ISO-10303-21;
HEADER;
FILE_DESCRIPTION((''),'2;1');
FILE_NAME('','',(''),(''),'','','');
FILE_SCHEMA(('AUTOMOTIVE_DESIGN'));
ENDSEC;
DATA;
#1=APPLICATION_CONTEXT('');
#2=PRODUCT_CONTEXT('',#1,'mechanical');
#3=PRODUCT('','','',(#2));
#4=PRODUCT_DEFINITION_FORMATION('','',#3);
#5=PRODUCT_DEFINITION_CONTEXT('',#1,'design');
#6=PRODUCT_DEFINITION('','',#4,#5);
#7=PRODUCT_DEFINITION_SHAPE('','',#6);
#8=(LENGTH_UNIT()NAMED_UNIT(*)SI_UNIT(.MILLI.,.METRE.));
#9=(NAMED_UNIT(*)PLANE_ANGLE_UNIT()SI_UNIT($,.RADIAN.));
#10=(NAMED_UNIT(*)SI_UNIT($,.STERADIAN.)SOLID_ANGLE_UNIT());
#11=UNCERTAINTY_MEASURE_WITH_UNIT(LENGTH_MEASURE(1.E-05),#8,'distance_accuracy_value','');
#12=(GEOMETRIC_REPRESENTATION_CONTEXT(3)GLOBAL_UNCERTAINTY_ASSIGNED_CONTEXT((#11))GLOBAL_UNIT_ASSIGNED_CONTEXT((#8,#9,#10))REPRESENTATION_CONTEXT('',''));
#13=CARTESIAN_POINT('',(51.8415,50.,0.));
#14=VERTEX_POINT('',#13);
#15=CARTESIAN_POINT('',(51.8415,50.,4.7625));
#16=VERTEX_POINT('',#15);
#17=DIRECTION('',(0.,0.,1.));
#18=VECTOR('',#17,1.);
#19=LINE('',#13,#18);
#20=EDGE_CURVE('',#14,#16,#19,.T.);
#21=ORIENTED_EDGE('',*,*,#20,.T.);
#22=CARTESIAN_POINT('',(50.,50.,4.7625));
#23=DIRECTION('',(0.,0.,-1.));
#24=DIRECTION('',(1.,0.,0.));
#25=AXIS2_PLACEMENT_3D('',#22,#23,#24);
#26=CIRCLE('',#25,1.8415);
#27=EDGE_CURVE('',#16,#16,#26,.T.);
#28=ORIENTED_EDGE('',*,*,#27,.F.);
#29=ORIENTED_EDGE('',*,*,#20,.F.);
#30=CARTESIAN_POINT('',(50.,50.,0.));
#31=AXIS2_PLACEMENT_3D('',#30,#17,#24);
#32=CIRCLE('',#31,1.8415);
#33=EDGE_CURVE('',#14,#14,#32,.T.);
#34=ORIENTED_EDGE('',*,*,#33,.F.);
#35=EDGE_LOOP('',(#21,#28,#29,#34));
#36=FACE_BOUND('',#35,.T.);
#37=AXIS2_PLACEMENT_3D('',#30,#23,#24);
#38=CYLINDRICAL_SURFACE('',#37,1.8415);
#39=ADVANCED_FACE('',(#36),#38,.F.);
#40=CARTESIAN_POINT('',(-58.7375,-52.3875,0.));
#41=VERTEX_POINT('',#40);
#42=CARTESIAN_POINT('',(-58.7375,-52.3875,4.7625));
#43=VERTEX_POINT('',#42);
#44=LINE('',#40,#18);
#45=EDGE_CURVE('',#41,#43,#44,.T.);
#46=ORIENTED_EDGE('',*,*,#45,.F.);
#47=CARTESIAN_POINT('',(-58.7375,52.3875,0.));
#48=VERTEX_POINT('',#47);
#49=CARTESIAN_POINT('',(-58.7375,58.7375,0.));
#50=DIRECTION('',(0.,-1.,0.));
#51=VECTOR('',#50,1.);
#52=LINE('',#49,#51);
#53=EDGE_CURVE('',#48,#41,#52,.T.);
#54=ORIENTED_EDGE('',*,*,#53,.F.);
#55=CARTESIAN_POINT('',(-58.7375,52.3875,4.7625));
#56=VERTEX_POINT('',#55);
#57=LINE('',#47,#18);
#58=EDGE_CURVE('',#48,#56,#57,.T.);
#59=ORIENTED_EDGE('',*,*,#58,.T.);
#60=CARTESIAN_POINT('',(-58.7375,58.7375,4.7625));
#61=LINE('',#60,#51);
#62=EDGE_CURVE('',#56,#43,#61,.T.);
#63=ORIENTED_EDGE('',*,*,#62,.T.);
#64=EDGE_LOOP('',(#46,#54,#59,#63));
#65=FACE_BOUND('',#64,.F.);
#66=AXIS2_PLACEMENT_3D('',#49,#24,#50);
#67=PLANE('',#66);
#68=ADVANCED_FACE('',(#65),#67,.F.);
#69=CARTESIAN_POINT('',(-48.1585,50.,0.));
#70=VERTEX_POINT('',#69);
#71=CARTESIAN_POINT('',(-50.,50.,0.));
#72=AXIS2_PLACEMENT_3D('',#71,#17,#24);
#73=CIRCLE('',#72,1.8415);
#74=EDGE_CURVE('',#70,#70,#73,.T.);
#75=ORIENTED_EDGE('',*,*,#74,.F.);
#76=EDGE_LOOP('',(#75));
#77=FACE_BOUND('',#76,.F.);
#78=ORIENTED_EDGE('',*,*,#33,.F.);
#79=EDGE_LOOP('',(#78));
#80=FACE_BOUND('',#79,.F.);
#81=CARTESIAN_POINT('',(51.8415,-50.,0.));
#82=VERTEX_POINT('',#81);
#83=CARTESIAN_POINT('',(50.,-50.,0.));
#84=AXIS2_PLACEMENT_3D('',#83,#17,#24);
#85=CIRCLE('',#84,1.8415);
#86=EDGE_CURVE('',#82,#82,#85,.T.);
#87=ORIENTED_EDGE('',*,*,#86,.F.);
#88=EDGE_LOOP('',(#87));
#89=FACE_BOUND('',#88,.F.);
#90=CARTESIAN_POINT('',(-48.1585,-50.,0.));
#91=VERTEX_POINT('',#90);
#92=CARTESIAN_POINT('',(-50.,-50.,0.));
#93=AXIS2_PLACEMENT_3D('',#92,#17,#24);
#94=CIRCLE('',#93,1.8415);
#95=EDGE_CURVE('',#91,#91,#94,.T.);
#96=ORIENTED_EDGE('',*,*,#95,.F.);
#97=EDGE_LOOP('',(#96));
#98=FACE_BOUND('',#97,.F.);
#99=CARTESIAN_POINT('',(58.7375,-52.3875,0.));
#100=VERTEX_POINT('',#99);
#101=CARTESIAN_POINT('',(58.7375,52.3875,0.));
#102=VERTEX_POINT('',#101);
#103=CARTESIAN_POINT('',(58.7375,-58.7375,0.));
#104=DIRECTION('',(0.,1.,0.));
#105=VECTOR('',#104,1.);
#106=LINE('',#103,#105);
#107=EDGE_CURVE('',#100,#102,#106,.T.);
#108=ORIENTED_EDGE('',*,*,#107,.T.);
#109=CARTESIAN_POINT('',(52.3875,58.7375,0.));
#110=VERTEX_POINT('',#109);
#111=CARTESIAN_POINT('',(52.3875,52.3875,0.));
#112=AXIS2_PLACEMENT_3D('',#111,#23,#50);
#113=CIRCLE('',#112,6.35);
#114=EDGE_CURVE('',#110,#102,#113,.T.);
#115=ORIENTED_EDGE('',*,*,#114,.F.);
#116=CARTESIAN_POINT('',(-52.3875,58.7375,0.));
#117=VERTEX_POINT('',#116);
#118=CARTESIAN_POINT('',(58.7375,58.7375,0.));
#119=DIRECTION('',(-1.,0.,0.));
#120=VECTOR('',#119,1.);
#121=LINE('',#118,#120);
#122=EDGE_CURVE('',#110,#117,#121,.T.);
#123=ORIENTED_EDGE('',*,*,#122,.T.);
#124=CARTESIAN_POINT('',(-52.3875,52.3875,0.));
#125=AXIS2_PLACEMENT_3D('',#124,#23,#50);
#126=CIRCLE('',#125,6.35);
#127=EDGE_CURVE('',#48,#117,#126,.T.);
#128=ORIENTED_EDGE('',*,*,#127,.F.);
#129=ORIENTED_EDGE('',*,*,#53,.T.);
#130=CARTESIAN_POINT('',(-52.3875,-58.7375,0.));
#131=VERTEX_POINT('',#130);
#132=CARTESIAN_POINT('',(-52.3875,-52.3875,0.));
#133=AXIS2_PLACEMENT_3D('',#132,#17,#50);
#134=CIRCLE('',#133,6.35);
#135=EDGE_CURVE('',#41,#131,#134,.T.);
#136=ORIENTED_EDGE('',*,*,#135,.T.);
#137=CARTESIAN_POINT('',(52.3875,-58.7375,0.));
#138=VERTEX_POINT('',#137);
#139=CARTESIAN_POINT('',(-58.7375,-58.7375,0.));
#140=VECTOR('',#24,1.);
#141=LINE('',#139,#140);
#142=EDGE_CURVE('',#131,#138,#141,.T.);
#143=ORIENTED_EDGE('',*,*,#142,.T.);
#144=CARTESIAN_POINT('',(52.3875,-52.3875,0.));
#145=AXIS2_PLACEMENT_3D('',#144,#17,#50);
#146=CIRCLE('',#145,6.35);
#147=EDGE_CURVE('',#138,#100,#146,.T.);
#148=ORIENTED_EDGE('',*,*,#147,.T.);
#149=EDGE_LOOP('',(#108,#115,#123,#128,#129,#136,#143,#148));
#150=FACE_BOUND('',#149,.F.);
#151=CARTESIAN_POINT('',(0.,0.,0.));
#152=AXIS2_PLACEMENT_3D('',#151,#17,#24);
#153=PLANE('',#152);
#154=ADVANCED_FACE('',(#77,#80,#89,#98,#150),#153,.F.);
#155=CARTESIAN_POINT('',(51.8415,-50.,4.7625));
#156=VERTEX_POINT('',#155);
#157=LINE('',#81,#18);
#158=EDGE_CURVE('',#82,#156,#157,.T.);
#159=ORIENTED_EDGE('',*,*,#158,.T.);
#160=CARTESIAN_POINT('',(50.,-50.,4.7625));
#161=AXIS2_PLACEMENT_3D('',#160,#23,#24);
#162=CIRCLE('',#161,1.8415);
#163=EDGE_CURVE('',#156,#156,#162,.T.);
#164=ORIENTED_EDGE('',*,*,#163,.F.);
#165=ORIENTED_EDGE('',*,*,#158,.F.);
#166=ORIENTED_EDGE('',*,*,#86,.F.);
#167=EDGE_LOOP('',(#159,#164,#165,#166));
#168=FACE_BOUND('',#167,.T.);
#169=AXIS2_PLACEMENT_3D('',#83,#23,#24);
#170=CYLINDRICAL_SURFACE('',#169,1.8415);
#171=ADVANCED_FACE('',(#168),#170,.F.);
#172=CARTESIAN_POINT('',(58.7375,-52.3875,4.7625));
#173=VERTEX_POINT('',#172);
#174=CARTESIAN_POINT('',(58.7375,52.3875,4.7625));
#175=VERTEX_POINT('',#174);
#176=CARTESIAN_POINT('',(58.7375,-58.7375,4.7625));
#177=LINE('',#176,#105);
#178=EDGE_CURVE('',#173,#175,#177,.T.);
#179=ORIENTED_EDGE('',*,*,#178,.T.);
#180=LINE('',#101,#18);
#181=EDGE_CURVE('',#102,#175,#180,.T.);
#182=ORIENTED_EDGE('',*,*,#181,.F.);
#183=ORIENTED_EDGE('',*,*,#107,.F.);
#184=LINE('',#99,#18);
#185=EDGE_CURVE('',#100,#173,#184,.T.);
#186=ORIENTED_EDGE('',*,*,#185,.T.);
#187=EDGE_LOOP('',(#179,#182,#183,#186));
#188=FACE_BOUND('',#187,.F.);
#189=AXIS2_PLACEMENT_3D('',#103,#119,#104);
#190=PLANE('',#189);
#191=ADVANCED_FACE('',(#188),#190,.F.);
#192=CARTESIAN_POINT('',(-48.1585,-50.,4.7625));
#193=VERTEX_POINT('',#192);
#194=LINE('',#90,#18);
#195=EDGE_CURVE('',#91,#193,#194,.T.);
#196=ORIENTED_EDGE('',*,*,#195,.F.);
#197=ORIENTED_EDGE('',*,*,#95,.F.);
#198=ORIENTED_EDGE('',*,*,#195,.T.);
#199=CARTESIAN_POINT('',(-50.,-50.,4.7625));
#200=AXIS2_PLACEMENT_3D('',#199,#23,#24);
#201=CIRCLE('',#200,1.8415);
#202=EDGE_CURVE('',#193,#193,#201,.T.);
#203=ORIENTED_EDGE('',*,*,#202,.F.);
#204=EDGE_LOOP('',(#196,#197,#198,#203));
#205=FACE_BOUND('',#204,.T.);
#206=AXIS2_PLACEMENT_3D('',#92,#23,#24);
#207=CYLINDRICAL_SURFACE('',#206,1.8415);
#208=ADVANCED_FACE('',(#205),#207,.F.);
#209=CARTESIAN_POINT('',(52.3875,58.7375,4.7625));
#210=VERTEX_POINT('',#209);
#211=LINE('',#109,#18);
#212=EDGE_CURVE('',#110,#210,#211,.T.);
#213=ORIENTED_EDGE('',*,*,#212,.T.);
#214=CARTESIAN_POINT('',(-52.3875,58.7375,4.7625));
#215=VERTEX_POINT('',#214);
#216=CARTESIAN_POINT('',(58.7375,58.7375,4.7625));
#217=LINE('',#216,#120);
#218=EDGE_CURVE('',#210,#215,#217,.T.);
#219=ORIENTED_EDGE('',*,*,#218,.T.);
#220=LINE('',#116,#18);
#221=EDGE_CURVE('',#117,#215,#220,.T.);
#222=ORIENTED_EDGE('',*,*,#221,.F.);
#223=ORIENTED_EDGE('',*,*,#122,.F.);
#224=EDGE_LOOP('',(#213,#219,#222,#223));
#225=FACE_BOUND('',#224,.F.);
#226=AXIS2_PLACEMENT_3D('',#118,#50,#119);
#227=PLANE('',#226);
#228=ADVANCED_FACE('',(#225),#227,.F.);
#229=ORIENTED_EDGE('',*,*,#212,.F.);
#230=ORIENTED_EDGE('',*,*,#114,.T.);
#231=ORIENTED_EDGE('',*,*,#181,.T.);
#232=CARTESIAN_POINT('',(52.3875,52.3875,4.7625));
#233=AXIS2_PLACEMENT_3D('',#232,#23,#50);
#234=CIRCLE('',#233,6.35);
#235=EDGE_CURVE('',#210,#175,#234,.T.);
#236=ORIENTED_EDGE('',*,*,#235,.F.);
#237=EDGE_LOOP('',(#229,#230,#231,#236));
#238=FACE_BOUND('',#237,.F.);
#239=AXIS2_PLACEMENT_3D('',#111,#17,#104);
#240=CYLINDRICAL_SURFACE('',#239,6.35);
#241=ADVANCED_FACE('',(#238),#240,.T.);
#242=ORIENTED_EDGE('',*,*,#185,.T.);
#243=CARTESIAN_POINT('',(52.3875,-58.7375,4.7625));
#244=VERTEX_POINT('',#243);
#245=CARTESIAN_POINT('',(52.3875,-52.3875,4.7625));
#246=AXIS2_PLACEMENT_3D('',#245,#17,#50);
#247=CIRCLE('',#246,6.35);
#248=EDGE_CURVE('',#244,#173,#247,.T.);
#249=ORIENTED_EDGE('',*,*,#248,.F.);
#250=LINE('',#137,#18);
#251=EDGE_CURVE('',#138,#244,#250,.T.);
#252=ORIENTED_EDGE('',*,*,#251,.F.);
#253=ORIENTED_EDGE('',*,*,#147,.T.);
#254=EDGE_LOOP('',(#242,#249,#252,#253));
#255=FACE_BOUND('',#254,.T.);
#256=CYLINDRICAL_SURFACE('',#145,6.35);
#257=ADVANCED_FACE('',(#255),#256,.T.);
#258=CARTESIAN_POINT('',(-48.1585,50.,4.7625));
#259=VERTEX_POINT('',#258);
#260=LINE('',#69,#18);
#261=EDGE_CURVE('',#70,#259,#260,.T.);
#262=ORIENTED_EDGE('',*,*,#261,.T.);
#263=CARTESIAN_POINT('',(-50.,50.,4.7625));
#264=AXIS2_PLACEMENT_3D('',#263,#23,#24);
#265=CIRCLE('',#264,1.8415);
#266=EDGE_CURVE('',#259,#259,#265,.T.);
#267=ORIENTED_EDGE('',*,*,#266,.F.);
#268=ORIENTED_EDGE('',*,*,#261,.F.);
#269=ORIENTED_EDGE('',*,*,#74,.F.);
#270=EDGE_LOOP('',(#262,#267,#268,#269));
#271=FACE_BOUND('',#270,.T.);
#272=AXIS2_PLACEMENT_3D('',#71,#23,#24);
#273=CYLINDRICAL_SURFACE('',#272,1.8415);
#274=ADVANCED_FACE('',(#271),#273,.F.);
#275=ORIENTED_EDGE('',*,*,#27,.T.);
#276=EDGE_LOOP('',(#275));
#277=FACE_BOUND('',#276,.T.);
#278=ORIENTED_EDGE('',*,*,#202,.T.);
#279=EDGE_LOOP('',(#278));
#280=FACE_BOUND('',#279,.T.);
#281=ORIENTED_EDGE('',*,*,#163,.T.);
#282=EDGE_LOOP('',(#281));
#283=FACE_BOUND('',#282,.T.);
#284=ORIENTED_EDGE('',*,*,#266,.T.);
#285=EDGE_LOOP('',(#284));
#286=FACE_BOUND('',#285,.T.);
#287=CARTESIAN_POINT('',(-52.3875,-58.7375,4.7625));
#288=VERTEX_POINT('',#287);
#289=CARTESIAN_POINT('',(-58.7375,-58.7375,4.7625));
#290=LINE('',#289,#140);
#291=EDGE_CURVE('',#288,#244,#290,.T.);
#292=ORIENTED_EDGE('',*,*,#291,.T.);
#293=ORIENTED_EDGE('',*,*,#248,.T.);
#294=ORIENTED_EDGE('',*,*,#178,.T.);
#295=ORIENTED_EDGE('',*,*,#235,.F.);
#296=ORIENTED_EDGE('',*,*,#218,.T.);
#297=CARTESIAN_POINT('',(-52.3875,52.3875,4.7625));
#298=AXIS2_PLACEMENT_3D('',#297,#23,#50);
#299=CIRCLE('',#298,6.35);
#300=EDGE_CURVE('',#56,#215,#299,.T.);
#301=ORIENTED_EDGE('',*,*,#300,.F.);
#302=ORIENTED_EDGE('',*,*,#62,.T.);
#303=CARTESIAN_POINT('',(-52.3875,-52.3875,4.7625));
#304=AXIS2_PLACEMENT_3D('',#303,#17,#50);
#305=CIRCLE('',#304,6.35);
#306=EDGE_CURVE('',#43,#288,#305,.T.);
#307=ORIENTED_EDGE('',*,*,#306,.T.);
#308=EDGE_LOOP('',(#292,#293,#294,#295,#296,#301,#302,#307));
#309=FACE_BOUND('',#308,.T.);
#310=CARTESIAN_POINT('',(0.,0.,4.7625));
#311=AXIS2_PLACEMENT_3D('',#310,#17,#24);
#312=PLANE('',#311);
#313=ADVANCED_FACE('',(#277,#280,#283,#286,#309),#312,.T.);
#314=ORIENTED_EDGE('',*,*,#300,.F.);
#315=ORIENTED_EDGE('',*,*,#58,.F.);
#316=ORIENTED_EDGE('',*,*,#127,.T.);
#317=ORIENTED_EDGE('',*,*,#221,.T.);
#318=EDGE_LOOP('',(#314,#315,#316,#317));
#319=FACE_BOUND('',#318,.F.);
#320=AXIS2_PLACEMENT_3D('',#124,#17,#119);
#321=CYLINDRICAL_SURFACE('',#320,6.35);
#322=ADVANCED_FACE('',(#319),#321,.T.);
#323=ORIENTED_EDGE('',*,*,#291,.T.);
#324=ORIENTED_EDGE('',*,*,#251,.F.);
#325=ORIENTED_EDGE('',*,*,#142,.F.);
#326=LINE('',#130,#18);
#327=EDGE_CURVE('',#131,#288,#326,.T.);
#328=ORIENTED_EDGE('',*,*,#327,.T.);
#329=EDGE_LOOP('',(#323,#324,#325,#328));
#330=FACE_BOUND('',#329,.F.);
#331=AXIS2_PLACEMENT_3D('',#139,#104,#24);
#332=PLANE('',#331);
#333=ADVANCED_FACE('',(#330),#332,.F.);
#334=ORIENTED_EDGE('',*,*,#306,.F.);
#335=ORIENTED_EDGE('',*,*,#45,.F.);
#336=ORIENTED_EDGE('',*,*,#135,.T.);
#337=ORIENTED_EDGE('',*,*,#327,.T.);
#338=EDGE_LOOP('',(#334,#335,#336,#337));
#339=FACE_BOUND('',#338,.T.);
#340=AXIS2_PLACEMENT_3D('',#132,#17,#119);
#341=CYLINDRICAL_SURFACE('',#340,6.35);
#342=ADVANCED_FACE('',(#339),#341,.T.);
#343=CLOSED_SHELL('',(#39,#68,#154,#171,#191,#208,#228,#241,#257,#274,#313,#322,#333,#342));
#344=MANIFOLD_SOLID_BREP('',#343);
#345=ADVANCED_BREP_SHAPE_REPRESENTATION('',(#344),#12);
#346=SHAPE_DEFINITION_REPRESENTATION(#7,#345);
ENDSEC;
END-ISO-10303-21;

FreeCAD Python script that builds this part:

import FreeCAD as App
import Part
import Sketcher
Q = App.Units.Quantity


def edges_at(feature, points):
    """Names of the edges that pass closest to the given points."""
    edges = feature.Shape.Edges
    near = lambda p: min(range(len(edges)), key=lambda i: edges[i].distToShape(Part.Vertex(*p))[0])
    return sorted({f"Edge{near(p) + 1}" for p in points})

doc = App.newDocument("Part")
body = doc.addObject("PartDesign::Body", "Body")

sketch1 = body.newObject("Sketcher::SketchObject", "Sketch")
sketch1.AttachmentSupport = (doc.getObject("XY_Plane"), [""])
sketch1.MapMode = "FlatFace"
sketch1.addGeometry([
    Part.LineSegment(App.Vector(-58.7, 58.7, 0), App.Vector(-58.7, -58.7, 0)),
    Part.LineSegment(App.Vector(-58.7, -58.7, 0), App.Vector(58.7, -58.7, 0)),
    Part.LineSegment(App.Vector(58.7, -58.7, 0), App.Vector(58.7, 58.7, 0)),
    Part.LineSegment(App.Vector(58.7, 58.7, 0), App.Vector(-58.7, 58.7, 0)),
    Part.Circle(App.Vector(-50, 50, 0), App.Vector(0, 0, 1), 1.8),
    Part.Circle(App.Vector(-50, -50, 0), App.Vector(0, 0, 1), 1.8),
    Part.Circle(App.Vector(50, -50, 0), App.Vector(0, 0, 1), 1.8),
    Part.Circle(App.Vector(50, 50, 0), App.Vector(0, 0, 1), 1.8),
], False)
sketch1.addConstraint([
    Sketcher.Constraint("Coincident", 0, 2, 1, 1),
    Sketcher.Constraint("Coincident", 1, 2, 2, 1),
    Sketcher.Constraint("Coincident", 2, 2, 3, 1),
    Sketcher.Constraint("Coincident", 3, 2, 0, 1),
    Sketcher.Constraint("Vertical", 0),
    Sketcher.Constraint("Horizontal", 1),
    Sketcher.Constraint("Vertical", 2),
    Sketcher.Constraint("Horizontal", 3),
    Sketcher.Constraint("Equal", 4, 5),
    Sketcher.Constraint("Equal", 5, 6),
    Sketcher.Constraint("Equal", 6, 7),
    Sketcher.Constraint("Symmetric", 4, 3, 6, 3, -1, 1),
    Sketcher.Constraint("Symmetric", 5, 3, 7, 3, -1, 1),
    Sketcher.Constraint("Symmetric", 0, 2, 2, 2, -1, 1),
    Sketcher.Constraint("Symmetric", 5, 3, 6, 3, -2),
    Sketcher.Constraint("Equal", 3, 0),
    Sketcher.Constraint("Diameter", 4, Q("0.145 in")),
    Sketcher.Constraint("DistanceX", 1, 1, 1, 2, Q("4.625 in")),
    Sketcher.Constraint("DistanceY", 5, 3, 4, 3, Q("3.937 in")),
    Sketcher.Constraint("DistanceX", 5, 3, 6, 3, Q("3.937 in")),
])
pad1 = body.newObject("PartDesign::Pad", "Pad")
pad1.Profile = sketch1
pad1.Length = Q("0.1875 in")
doc.recompute()

fillet = body.newObject("PartDesign::Fillet", "Fillet")
fillet.Base = (pad1, edges_at(pad1, [
    (58.737, 58.737, 2.381),
    (-58.737, 58.737, 2.381),
    (58.737, -58.737, 2.381),
    (-58.737, -58.737, 2.381),
]))
fillet.Radius = Q("0.25 in")

doc.recompute()
